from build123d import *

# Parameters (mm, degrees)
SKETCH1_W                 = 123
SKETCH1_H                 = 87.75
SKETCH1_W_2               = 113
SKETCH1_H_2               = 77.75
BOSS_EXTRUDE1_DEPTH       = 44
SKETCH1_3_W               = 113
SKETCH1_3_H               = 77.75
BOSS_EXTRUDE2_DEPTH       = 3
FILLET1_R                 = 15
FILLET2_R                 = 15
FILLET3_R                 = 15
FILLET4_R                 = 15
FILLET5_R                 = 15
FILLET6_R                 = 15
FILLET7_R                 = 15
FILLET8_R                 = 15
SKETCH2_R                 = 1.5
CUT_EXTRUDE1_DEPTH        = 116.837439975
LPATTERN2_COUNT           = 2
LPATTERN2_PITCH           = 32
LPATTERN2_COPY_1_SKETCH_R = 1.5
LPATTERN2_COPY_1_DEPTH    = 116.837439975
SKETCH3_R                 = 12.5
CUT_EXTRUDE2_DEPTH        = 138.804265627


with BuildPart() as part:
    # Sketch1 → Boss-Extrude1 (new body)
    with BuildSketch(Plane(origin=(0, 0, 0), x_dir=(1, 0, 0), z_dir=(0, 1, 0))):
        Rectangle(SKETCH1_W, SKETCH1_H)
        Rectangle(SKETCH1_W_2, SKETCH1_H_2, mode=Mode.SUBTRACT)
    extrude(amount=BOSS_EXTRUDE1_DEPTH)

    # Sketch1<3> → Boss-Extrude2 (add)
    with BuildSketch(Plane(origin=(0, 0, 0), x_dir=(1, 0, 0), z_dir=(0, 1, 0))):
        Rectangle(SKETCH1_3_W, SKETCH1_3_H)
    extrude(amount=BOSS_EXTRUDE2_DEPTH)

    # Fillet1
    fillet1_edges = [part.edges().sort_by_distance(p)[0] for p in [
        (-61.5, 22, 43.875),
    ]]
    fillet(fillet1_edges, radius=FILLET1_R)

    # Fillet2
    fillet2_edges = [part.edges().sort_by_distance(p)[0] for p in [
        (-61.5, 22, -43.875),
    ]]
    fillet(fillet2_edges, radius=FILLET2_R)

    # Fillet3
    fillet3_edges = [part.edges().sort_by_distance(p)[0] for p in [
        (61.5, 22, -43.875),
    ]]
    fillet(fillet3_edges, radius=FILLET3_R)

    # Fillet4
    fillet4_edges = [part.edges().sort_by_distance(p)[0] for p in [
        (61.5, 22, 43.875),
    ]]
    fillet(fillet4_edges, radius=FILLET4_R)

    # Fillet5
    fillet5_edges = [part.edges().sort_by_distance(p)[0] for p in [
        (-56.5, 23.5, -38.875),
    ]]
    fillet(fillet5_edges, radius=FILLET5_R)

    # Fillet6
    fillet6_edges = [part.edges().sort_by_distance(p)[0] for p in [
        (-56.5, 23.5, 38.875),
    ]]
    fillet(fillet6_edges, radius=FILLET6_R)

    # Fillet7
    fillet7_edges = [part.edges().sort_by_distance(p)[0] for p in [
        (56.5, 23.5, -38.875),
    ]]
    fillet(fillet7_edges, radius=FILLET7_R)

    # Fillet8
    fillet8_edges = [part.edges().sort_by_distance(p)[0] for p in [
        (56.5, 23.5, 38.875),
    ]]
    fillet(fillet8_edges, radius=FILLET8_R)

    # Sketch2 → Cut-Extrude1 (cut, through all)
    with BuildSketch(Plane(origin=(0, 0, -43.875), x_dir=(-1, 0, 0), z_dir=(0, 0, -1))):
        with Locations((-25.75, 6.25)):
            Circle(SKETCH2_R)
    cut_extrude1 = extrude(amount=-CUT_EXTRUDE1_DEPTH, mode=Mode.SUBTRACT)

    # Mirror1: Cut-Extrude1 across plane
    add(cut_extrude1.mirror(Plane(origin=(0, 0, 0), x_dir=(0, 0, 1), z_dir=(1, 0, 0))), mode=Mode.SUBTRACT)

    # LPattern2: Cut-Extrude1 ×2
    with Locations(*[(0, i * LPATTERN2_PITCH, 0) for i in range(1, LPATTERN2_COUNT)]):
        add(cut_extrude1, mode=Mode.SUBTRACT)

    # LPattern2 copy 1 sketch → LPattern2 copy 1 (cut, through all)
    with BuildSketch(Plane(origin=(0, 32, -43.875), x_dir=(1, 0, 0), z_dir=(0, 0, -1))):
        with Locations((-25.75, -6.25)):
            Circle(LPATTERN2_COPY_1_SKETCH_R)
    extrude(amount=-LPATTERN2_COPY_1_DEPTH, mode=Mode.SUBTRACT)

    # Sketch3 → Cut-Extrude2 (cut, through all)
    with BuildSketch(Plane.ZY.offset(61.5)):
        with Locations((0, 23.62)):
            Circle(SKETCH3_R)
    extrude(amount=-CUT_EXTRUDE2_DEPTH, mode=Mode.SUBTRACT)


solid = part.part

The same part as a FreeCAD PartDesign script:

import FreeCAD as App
import Part
import Sketcher

V = App.Vector


def edges_at(feature, points):
    """Names of the edges that pass closest to the given points."""
    edges = feature.Shape.Edges
    near = lambda p: min(range(len(edges)), key=lambda i: edges[i].distToShape(Part.Vertex(*p))[0])
    return sorted({f"Edge{near(p) + 1}" for p in points})

doc = App.newDocument("Part")
params = doc.addObject("Spreadsheet::Sheet", "Params")
for row, (alias, value) in enumerate([
    ("sketch1_width", "123 mm"),
    ("sketch1_width2", "113 mm"),
    ("sketch1_height", "87.75 mm"),
    ("pad1_length", "44 mm"),
    ("sketch2_width", "113 mm"),
    ("sketch2_height", "77.75 mm"),
    ("pad2_length", "3 mm"),
    ("fillet_radius", "15 mm"),
    ("fillet2_radius", "15 mm"),
    ("fillet3_radius", "15 mm"),
    ("fillet4_radius", "15 mm"),
    ("fillet5_radius", "15 mm"),
    ("fillet6_radius", "15 mm"),
    ("fillet7_radius", "15 mm"),
    ("fillet8_radius", "15 mm"),
    ("sketch3_diameter", "3 mm"),
    ("linearpattern_pitch", "32 mm"),
    ("sketch4_diameter", "3 mm"),
    ("sketch5_diameter", "25 mm"),
], start=1):
    params.set(f"A{row}", alias)
    params.set(f"B{row}", "=" + value)
    params.setAlias(f"B{row}", alias)

body = doc.addObject("PartDesign::Body", "Body")

# Sketch on XZ plane
sketch1 = body.newObject("Sketcher::SketchObject", "Sketch")
sketch1.AttachmentSupport = (doc.getObject("XZ_Plane"), [""])
sketch1.MapMode = "FlatFace"
sketch1.addGeometry([
    Part.LineSegment(V(-61.5, -43.875, 0), V(-61.5, 43.875, 0)),  # 0
    Part.LineSegment(V(-61.5, 43.875, 0), V(61.5, 43.875, 0)),  # 1
    Part.LineSegment(V(61.5, 43.875, 0), V(61.5, -43.875, 0)),  # 2
    Part.LineSegment(V(61.5, -43.875, 0), V(-61.5, -43.875, 0)),  # 3
    Part.LineSegment(V(56.5, 38.875, 0), V(-56.5, 38.875, 0)),  # 4
    Part.LineSegment(V(-56.5, 38.875, 0), V(-56.5, -38.875, 0)),  # 5
    Part.LineSegment(V(-56.5, -38.875, 0), V(56.5, -38.875, 0)),  # 6
    Part.LineSegment(V(56.5, -38.875, 0), V(56.5, 38.875, 0)),  # 7
], False)
sketch1.addConstraint([
    Sketcher.Constraint("Coincident", 0, 2, 1, 1),
    Sketcher.Constraint("Coincident", 1, 2, 2, 1),
    Sketcher.Constraint("Coincident", 2, 2, 3, 1),
    Sketcher.Constraint("Coincident", 3, 2, 0, 1),
    Sketcher.Constraint("Coincident", 4, 2, 5, 1),
    Sketcher.Constraint("Coincident", 5, 2, 6, 1),
    Sketcher.Constraint("Coincident", 6, 2, 7, 1),
    Sketcher.Constraint("Coincident", 7, 2, 4, 1),
    Sketcher.Constraint("Vertical", 0),
    Sketcher.Constraint("Horizontal", 1),
    Sketcher.Constraint("Vertical", 2),
    Sketcher.Constraint("Horizontal", 3),
    Sketcher.Constraint("Horizontal", 4),
    Sketcher.Constraint("Vertical", 5),
    Sketcher.Constraint("Horizontal", 6),
    Sketcher.Constraint("Vertical", 7),
    Sketcher.Constraint("Symmetric", 0, 2, 2, 2, -1, 1),
    Sketcher.Constraint("Symmetric", 4, 2, 6, 2, -1, 1),
    Sketcher.Constraint("DistanceX", 1, 1, 1, 2, 123.0),
    Sketcher.Constraint("DistanceX", 4, 2, 4, 1, 113.0),
    Sketcher.Constraint("DistanceY", 4, 2, 0, 2, 5.0),
    Sketcher.Constraint("DistanceY", 0, 1, 0, 2, 87.75),
])
sketch1.setExpression("Constraints[18]", "Params.sketch1_width")
sketch1.setExpression("Constraints[19]", "Params.sketch1_width2")
sketch1.setExpression("Constraints[21]", "Params.sketch1_height")
pad1 = body.newObject("PartDesign::Pad", "Pad")
pad1.Profile = sketch1
pad1.setExpression("Length", "Params.pad1_length")
pad1.Reversed = True

# Sketch on XZ plane
sketch2 = body.newObject("Sketcher::SketchObject", "Sketch001")
sketch2.AttachmentSupport = (doc.getObject("XZ_Plane"), [""])
sketch2.MapMode = "FlatFace"
sketch2.addGeometry([
    Part.LineSegment(V(-56.5, -38.875, 0), V(-56.5, 38.875, 0)),
    Part.LineSegment(V(-56.5, 38.875, 0), V(56.5, 38.875, 0)),
    Part.LineSegment(V(56.5, 38.875, 0), V(56.5, -38.875, 0)),
    Part.LineSegment(V(56.5, -38.875, 0), V(-56.5, -38.875, 0)),
], False)
sketch2.addConstraint([
    Sketcher.Constraint("Coincident", 0, 2, 1, 1),
    Sketcher.Constraint("Coincident", 1, 2, 2, 1),
    Sketcher.Constraint("Coincident", 2, 2, 3, 1),
    Sketcher.Constraint("Coincident", 3, 2, 0, 1),
    Sketcher.Constraint("Vertical", 0),
    Sketcher.Constraint("Horizontal", 1),
    Sketcher.Constraint("Vertical", 2),
    Sketcher.Constraint("Horizontal", 3),
    Sketcher.Constraint("Symmetric", 0, 2, 2, 2, -1, 1),
    Sketcher.Constraint("DistanceX", 1, 1, 1, 2, 113.0),
    Sketcher.Constraint("DistanceY", 0, 1, 0, 2, 77.75),
])
sketch2.setExpression("Constraints[9]", "Params.sketch2_width")
sketch2.setExpression("Constraints[10]", "Params.sketch2_height")
pad2 = body.newObject("PartDesign::Pad", "Pad001")
pad2.Profile = sketch2
pad2.setExpression("Length", "Params.pad2_length")
pad2.Reversed = True
doc.recompute()

fillet = body.newObject("PartDesign::Fillet", "Fillet")
fillet.Base = (pad2, edges_at(pad2, [(-61.5, 22, 43.875)]))
fillet.setExpression("Radius", "Params.fillet_radius")
doc.recompute()

fillet2 = body.newObject("PartDesign::Fillet", "Fillet001")
fillet2.Base = (fillet, edges_at(fillet, [(-61.5, 22, -43.875)]))
fillet2.setExpression("Radius", "Params.fillet2_radius")
doc.recompute()

fillet3 = body.newObject("PartDesign::Fillet", "Fillet002")
fillet3.Base = (fillet2, edges_at(fillet2, [(61.5, 22, -43.875)]))
fillet3.setExpression("Radius", "Params.fillet3_radius")
doc.recompute()

fillet4 = body.newObject("PartDesign::Fillet", "Fillet003")
fillet4.Base = (fillet3, edges_at(fillet3, [(61.5, 22, 43.875)]))
fillet4.setExpression("Radius", "Params.fillet4_radius")
doc.recompute()

fillet5 = body.newObject("PartDesign::Fillet", "Fillet004")
fillet5.Base = (fillet4, edges_at(fillet4, [(-56.5, 23.5, -38.875)]))
fillet5.setExpression("Radius", "Params.fillet5_radius")
doc.recompute()

fillet6 = body.newObject("PartDesign::Fillet", "Fillet005")
fillet6.Base = (fillet5, edges_at(fillet5, [(-56.5, 23.5, 38.875)]))
fillet6.setExpression("Radius", "Params.fillet6_radius")
doc.recompute()

fillet7 = body.newObject("PartDesign::Fillet", "Fillet006")
fillet7.Base = (fillet6, edges_at(fillet6, [(56.5, 23.5, -38.875)]))
fillet7.setExpression("Radius", "Params.fillet7_radius")
doc.recompute()

fillet8 = body.newObject("PartDesign::Fillet", "Fillet007")
fillet8.Base = (fillet7, edges_at(fillet7, [(56.5, 23.5, 38.875)]))
fillet8.setExpression("Radius", "Params.fillet8_radius")

# Sketch on XY plane
sketch3 = body.newObject("Sketcher::SketchObject", "Sketch002")
sketch3.AttachmentSupport = (doc.getObject("XY_Plane"), [""])
sketch3.MapMode = "FlatFace"
sketch3.AttachmentOffset = App.Placement(V(0, 0, -43.875), App.Rotation())
sketch3.addGeometry(Part.Circle(V(25.75, 6.25, 0), V(0, 0, 1), 1.5), False)
sketch3.addConstraint([
    Sketcher.Constraint("Diameter", 0, 3.0),
    Sketcher.Constraint("DistanceX", -1, 1, 0, 3, 25.75),
    Sketcher.Constraint("DistanceY", -1, 1, 0, 3, 6.25),
])
sketch3.setExpression("Constraints[0]", "Params.sketch3_diameter")
pocket1 = body.newObject("PartDesign::Pocket", "Pocket")
pocket1.Profile = sketch3
pocket1.Type = "ThroughAll"
pocket1.Reversed = True
doc.recompute()

mirrored = body.newObject("PartDesign::Mirrored", "Mirrored")
mirrored.Originals = [pocket1]
mirrored.MirrorPlane = (doc.getObject("YZ_Plane"), [""])
body.Tip = mirrored
doc.recompute()

linearpattern = body.newObject("PartDesign::LinearPattern", "LinearPattern")
linearpattern.Originals = [pocket1]
linearpattern.Direction = (doc.getObject("Y_Axis"), [""])
linearpattern.Mode = "offset"
linearpattern.setExpression("Offset", "Params.linearpattern_pitch")
linearpattern.Occurrences = 2
body.Tip = linearpattern

# Sketch on XY plane
sketch4 = body.newObject("Sketcher::SketchObject", "Sketch003")
sketch4.AttachmentSupport = (doc.getObject("XY_Plane"), [""])
sketch4.MapMode = "FlatFace"
sketch4.AttachmentOffset = App.Placement(V(0, 0, -43.875), App.Rotation())
sketch4.addGeometry(Part.Circle(V(-25.75, 38.25, 0), V(0, 0, 1), 1.5), False)
sketch4.addConstraint([
    Sketcher.Constraint("Diameter", 0, 3.0),
    Sketcher.Constraint("DistanceX", 0, 3, -1, 1, 25.75),
    Sketcher.Constraint("DistanceY", -1, 1, 0, 3, 38.25),
])
sketch4.setExpression("Constraints[0]", "Params.sketch4_diameter")
pocket2 = body.newObject("PartDesign::Pocket", "Pocket001")
pocket2.Profile = sketch4
pocket2.Type = "ThroughAll"
pocket2.Reversed = True

# Sketch on YZ plane
sketch5 = body.newObject("Sketcher::SketchObject", "Sketch004")
sketch5.AttachmentSupport = (doc.getObject("YZ_Plane"), [""])
sketch5.MapMode = "FlatFace"
sketch5.AttachmentOffset = App.Placement(V(0, 0, -61.5), App.Rotation())
sketch5.addGeometry(Part.Circle(V(23.62, 0, 0), V(0, 0, 1), 12.5), False)
sketch5.addConstraint([
    Sketcher.Constraint("PointOnObject", 0, 3, -1),
    Sketcher.Constraint("Diameter", 0, 25.0),
    Sketcher.Constraint("DistanceX", -1, 1, 0, 3, 23.62),
])
sketch5.setExpression("Constraints[1]", "Params.sketch5_diameter")
pocket3 = body.newObject("PartDesign::Pocket", "Pocket002")
pocket3.Profile = sketch5
pocket3.Type = "ThroughAll"
pocket3.Reversed = True

doc.recompute()
